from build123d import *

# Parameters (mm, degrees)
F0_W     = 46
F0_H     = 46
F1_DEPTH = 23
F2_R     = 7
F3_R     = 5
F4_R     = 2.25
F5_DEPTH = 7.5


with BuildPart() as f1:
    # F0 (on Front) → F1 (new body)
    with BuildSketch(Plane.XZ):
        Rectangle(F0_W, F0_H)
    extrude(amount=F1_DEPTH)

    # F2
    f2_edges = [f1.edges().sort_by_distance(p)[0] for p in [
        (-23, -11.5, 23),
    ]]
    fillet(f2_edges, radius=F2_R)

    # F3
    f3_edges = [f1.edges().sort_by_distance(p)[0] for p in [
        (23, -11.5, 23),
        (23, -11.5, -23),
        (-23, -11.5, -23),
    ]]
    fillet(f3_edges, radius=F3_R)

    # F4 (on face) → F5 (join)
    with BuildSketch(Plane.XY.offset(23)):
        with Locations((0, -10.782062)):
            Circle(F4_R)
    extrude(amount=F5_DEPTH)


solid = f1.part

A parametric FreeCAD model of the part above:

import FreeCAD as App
import Part
import Sketcher
Q = App.Units.Quantity


def edges_at(feature, points):
    """Names of the edges that pass closest to the given points."""
    edges = feature.Shape.Edges
    near = lambda p: min(range(len(edges)), key=lambda i: edges[i].distToShape(Part.Vertex(*p))[0])
    return sorted({f"Edge{near(p) + 1}" for p in points})

doc = App.newDocument("Part")
body = doc.addObject("PartDesign::Body", "Body")

sketch1 = body.newObject("Sketcher::SketchObject", "Sketch")
sketch1.AttachmentSupport = (doc.getObject("XZ_Plane"), [""])
sketch1.MapMode = "FlatFace"
sketch1.addGeometry([
    Part.LineSegment(App.Vector(-23, 23, 0), App.Vector(-23, -23, 0)),
    Part.LineSegment(App.Vector(-23, -23, 0), App.Vector(23, -23, 0)),
    Part.LineSegment(App.Vector(23, -23, 0), App.Vector(23, 23, 0)),
    Part.LineSegment(App.Vector(23, 23, 0), App.Vector(-23, 23, 0)),
], False)
sketch1.addConstraint([
    Sketcher.Constraint("Coincident", 0, 2, 1, 1),
    Sketcher.Constraint("Coincident", 1, 2, 2, 1),
    Sketcher.Constraint("Coincident", 2, 2, 3, 1),
    Sketcher.Constraint("Coincident", 3, 2, 0, 1),
    Sketcher.Constraint("Vertical", 0),
    Sketcher.Constraint("Horizontal", 1),
    Sketcher.Constraint("Vertical", 2),
    Sketcher.Constraint("Horizontal", 3),
    Sketcher.Constraint("Symmetric", 0, 2, 2, 2, -1, 1),
    Sketcher.Constraint("Equal", 3, 0),
    Sketcher.Constraint("DistanceX", 1, 1, 1, 2, Q("46 mm")),
])
pad1 = body.newObject("PartDesign::Pad", "Pad")
pad1.Profile = sketch1
pad1.Length = 23
doc.recompute()

fillet = body.newObject("PartDesign::Fillet", "Fillet")
fillet.Base = (pad1, edges_at(pad1, [(-23, -11.5, 23)]))
fillet.Radius = 7
doc.recompute()

fillet2 = body.newObject("PartDesign::Fillet", "Fillet001")
fillet2.Base = (fillet, edges_at(fillet, [(23, -11.5, 23), (23, -11.5, -23), (-23, -11.5, -23)]))
fillet2.Radius = 5

sketch2 = body.newObject("Sketcher::SketchObject", "Sketch001")
sketch2.AttachmentSupport = (doc.getObject("XY_Plane"), [""])
sketch2.MapMode = "FlatFace"
sketch2.AttachmentOffset = App.Placement(App.Vector(0, 0, 23), App.Rotation())
sketch2.addGeometry(Part.Circle(App.Vector(0, -10.8, 0), App.Vector(0, 0, 1), 2.2), False)
sketch2.addConstraint([
    Sketcher.Constraint("PointOnObject", 0, 3, -2),
    Sketcher.Constraint("Diameter", 0, Q("4.5 mm")),
    Sketcher.Constraint("DistanceY", 0, 3, -1, 1, Q("10.782062 mm")),
])
pad2 = body.newObject("PartDesign::Pad", "Pad001")
pad2.Profile = sketch2
pad2.Length = 7.5

doc.recompute()
